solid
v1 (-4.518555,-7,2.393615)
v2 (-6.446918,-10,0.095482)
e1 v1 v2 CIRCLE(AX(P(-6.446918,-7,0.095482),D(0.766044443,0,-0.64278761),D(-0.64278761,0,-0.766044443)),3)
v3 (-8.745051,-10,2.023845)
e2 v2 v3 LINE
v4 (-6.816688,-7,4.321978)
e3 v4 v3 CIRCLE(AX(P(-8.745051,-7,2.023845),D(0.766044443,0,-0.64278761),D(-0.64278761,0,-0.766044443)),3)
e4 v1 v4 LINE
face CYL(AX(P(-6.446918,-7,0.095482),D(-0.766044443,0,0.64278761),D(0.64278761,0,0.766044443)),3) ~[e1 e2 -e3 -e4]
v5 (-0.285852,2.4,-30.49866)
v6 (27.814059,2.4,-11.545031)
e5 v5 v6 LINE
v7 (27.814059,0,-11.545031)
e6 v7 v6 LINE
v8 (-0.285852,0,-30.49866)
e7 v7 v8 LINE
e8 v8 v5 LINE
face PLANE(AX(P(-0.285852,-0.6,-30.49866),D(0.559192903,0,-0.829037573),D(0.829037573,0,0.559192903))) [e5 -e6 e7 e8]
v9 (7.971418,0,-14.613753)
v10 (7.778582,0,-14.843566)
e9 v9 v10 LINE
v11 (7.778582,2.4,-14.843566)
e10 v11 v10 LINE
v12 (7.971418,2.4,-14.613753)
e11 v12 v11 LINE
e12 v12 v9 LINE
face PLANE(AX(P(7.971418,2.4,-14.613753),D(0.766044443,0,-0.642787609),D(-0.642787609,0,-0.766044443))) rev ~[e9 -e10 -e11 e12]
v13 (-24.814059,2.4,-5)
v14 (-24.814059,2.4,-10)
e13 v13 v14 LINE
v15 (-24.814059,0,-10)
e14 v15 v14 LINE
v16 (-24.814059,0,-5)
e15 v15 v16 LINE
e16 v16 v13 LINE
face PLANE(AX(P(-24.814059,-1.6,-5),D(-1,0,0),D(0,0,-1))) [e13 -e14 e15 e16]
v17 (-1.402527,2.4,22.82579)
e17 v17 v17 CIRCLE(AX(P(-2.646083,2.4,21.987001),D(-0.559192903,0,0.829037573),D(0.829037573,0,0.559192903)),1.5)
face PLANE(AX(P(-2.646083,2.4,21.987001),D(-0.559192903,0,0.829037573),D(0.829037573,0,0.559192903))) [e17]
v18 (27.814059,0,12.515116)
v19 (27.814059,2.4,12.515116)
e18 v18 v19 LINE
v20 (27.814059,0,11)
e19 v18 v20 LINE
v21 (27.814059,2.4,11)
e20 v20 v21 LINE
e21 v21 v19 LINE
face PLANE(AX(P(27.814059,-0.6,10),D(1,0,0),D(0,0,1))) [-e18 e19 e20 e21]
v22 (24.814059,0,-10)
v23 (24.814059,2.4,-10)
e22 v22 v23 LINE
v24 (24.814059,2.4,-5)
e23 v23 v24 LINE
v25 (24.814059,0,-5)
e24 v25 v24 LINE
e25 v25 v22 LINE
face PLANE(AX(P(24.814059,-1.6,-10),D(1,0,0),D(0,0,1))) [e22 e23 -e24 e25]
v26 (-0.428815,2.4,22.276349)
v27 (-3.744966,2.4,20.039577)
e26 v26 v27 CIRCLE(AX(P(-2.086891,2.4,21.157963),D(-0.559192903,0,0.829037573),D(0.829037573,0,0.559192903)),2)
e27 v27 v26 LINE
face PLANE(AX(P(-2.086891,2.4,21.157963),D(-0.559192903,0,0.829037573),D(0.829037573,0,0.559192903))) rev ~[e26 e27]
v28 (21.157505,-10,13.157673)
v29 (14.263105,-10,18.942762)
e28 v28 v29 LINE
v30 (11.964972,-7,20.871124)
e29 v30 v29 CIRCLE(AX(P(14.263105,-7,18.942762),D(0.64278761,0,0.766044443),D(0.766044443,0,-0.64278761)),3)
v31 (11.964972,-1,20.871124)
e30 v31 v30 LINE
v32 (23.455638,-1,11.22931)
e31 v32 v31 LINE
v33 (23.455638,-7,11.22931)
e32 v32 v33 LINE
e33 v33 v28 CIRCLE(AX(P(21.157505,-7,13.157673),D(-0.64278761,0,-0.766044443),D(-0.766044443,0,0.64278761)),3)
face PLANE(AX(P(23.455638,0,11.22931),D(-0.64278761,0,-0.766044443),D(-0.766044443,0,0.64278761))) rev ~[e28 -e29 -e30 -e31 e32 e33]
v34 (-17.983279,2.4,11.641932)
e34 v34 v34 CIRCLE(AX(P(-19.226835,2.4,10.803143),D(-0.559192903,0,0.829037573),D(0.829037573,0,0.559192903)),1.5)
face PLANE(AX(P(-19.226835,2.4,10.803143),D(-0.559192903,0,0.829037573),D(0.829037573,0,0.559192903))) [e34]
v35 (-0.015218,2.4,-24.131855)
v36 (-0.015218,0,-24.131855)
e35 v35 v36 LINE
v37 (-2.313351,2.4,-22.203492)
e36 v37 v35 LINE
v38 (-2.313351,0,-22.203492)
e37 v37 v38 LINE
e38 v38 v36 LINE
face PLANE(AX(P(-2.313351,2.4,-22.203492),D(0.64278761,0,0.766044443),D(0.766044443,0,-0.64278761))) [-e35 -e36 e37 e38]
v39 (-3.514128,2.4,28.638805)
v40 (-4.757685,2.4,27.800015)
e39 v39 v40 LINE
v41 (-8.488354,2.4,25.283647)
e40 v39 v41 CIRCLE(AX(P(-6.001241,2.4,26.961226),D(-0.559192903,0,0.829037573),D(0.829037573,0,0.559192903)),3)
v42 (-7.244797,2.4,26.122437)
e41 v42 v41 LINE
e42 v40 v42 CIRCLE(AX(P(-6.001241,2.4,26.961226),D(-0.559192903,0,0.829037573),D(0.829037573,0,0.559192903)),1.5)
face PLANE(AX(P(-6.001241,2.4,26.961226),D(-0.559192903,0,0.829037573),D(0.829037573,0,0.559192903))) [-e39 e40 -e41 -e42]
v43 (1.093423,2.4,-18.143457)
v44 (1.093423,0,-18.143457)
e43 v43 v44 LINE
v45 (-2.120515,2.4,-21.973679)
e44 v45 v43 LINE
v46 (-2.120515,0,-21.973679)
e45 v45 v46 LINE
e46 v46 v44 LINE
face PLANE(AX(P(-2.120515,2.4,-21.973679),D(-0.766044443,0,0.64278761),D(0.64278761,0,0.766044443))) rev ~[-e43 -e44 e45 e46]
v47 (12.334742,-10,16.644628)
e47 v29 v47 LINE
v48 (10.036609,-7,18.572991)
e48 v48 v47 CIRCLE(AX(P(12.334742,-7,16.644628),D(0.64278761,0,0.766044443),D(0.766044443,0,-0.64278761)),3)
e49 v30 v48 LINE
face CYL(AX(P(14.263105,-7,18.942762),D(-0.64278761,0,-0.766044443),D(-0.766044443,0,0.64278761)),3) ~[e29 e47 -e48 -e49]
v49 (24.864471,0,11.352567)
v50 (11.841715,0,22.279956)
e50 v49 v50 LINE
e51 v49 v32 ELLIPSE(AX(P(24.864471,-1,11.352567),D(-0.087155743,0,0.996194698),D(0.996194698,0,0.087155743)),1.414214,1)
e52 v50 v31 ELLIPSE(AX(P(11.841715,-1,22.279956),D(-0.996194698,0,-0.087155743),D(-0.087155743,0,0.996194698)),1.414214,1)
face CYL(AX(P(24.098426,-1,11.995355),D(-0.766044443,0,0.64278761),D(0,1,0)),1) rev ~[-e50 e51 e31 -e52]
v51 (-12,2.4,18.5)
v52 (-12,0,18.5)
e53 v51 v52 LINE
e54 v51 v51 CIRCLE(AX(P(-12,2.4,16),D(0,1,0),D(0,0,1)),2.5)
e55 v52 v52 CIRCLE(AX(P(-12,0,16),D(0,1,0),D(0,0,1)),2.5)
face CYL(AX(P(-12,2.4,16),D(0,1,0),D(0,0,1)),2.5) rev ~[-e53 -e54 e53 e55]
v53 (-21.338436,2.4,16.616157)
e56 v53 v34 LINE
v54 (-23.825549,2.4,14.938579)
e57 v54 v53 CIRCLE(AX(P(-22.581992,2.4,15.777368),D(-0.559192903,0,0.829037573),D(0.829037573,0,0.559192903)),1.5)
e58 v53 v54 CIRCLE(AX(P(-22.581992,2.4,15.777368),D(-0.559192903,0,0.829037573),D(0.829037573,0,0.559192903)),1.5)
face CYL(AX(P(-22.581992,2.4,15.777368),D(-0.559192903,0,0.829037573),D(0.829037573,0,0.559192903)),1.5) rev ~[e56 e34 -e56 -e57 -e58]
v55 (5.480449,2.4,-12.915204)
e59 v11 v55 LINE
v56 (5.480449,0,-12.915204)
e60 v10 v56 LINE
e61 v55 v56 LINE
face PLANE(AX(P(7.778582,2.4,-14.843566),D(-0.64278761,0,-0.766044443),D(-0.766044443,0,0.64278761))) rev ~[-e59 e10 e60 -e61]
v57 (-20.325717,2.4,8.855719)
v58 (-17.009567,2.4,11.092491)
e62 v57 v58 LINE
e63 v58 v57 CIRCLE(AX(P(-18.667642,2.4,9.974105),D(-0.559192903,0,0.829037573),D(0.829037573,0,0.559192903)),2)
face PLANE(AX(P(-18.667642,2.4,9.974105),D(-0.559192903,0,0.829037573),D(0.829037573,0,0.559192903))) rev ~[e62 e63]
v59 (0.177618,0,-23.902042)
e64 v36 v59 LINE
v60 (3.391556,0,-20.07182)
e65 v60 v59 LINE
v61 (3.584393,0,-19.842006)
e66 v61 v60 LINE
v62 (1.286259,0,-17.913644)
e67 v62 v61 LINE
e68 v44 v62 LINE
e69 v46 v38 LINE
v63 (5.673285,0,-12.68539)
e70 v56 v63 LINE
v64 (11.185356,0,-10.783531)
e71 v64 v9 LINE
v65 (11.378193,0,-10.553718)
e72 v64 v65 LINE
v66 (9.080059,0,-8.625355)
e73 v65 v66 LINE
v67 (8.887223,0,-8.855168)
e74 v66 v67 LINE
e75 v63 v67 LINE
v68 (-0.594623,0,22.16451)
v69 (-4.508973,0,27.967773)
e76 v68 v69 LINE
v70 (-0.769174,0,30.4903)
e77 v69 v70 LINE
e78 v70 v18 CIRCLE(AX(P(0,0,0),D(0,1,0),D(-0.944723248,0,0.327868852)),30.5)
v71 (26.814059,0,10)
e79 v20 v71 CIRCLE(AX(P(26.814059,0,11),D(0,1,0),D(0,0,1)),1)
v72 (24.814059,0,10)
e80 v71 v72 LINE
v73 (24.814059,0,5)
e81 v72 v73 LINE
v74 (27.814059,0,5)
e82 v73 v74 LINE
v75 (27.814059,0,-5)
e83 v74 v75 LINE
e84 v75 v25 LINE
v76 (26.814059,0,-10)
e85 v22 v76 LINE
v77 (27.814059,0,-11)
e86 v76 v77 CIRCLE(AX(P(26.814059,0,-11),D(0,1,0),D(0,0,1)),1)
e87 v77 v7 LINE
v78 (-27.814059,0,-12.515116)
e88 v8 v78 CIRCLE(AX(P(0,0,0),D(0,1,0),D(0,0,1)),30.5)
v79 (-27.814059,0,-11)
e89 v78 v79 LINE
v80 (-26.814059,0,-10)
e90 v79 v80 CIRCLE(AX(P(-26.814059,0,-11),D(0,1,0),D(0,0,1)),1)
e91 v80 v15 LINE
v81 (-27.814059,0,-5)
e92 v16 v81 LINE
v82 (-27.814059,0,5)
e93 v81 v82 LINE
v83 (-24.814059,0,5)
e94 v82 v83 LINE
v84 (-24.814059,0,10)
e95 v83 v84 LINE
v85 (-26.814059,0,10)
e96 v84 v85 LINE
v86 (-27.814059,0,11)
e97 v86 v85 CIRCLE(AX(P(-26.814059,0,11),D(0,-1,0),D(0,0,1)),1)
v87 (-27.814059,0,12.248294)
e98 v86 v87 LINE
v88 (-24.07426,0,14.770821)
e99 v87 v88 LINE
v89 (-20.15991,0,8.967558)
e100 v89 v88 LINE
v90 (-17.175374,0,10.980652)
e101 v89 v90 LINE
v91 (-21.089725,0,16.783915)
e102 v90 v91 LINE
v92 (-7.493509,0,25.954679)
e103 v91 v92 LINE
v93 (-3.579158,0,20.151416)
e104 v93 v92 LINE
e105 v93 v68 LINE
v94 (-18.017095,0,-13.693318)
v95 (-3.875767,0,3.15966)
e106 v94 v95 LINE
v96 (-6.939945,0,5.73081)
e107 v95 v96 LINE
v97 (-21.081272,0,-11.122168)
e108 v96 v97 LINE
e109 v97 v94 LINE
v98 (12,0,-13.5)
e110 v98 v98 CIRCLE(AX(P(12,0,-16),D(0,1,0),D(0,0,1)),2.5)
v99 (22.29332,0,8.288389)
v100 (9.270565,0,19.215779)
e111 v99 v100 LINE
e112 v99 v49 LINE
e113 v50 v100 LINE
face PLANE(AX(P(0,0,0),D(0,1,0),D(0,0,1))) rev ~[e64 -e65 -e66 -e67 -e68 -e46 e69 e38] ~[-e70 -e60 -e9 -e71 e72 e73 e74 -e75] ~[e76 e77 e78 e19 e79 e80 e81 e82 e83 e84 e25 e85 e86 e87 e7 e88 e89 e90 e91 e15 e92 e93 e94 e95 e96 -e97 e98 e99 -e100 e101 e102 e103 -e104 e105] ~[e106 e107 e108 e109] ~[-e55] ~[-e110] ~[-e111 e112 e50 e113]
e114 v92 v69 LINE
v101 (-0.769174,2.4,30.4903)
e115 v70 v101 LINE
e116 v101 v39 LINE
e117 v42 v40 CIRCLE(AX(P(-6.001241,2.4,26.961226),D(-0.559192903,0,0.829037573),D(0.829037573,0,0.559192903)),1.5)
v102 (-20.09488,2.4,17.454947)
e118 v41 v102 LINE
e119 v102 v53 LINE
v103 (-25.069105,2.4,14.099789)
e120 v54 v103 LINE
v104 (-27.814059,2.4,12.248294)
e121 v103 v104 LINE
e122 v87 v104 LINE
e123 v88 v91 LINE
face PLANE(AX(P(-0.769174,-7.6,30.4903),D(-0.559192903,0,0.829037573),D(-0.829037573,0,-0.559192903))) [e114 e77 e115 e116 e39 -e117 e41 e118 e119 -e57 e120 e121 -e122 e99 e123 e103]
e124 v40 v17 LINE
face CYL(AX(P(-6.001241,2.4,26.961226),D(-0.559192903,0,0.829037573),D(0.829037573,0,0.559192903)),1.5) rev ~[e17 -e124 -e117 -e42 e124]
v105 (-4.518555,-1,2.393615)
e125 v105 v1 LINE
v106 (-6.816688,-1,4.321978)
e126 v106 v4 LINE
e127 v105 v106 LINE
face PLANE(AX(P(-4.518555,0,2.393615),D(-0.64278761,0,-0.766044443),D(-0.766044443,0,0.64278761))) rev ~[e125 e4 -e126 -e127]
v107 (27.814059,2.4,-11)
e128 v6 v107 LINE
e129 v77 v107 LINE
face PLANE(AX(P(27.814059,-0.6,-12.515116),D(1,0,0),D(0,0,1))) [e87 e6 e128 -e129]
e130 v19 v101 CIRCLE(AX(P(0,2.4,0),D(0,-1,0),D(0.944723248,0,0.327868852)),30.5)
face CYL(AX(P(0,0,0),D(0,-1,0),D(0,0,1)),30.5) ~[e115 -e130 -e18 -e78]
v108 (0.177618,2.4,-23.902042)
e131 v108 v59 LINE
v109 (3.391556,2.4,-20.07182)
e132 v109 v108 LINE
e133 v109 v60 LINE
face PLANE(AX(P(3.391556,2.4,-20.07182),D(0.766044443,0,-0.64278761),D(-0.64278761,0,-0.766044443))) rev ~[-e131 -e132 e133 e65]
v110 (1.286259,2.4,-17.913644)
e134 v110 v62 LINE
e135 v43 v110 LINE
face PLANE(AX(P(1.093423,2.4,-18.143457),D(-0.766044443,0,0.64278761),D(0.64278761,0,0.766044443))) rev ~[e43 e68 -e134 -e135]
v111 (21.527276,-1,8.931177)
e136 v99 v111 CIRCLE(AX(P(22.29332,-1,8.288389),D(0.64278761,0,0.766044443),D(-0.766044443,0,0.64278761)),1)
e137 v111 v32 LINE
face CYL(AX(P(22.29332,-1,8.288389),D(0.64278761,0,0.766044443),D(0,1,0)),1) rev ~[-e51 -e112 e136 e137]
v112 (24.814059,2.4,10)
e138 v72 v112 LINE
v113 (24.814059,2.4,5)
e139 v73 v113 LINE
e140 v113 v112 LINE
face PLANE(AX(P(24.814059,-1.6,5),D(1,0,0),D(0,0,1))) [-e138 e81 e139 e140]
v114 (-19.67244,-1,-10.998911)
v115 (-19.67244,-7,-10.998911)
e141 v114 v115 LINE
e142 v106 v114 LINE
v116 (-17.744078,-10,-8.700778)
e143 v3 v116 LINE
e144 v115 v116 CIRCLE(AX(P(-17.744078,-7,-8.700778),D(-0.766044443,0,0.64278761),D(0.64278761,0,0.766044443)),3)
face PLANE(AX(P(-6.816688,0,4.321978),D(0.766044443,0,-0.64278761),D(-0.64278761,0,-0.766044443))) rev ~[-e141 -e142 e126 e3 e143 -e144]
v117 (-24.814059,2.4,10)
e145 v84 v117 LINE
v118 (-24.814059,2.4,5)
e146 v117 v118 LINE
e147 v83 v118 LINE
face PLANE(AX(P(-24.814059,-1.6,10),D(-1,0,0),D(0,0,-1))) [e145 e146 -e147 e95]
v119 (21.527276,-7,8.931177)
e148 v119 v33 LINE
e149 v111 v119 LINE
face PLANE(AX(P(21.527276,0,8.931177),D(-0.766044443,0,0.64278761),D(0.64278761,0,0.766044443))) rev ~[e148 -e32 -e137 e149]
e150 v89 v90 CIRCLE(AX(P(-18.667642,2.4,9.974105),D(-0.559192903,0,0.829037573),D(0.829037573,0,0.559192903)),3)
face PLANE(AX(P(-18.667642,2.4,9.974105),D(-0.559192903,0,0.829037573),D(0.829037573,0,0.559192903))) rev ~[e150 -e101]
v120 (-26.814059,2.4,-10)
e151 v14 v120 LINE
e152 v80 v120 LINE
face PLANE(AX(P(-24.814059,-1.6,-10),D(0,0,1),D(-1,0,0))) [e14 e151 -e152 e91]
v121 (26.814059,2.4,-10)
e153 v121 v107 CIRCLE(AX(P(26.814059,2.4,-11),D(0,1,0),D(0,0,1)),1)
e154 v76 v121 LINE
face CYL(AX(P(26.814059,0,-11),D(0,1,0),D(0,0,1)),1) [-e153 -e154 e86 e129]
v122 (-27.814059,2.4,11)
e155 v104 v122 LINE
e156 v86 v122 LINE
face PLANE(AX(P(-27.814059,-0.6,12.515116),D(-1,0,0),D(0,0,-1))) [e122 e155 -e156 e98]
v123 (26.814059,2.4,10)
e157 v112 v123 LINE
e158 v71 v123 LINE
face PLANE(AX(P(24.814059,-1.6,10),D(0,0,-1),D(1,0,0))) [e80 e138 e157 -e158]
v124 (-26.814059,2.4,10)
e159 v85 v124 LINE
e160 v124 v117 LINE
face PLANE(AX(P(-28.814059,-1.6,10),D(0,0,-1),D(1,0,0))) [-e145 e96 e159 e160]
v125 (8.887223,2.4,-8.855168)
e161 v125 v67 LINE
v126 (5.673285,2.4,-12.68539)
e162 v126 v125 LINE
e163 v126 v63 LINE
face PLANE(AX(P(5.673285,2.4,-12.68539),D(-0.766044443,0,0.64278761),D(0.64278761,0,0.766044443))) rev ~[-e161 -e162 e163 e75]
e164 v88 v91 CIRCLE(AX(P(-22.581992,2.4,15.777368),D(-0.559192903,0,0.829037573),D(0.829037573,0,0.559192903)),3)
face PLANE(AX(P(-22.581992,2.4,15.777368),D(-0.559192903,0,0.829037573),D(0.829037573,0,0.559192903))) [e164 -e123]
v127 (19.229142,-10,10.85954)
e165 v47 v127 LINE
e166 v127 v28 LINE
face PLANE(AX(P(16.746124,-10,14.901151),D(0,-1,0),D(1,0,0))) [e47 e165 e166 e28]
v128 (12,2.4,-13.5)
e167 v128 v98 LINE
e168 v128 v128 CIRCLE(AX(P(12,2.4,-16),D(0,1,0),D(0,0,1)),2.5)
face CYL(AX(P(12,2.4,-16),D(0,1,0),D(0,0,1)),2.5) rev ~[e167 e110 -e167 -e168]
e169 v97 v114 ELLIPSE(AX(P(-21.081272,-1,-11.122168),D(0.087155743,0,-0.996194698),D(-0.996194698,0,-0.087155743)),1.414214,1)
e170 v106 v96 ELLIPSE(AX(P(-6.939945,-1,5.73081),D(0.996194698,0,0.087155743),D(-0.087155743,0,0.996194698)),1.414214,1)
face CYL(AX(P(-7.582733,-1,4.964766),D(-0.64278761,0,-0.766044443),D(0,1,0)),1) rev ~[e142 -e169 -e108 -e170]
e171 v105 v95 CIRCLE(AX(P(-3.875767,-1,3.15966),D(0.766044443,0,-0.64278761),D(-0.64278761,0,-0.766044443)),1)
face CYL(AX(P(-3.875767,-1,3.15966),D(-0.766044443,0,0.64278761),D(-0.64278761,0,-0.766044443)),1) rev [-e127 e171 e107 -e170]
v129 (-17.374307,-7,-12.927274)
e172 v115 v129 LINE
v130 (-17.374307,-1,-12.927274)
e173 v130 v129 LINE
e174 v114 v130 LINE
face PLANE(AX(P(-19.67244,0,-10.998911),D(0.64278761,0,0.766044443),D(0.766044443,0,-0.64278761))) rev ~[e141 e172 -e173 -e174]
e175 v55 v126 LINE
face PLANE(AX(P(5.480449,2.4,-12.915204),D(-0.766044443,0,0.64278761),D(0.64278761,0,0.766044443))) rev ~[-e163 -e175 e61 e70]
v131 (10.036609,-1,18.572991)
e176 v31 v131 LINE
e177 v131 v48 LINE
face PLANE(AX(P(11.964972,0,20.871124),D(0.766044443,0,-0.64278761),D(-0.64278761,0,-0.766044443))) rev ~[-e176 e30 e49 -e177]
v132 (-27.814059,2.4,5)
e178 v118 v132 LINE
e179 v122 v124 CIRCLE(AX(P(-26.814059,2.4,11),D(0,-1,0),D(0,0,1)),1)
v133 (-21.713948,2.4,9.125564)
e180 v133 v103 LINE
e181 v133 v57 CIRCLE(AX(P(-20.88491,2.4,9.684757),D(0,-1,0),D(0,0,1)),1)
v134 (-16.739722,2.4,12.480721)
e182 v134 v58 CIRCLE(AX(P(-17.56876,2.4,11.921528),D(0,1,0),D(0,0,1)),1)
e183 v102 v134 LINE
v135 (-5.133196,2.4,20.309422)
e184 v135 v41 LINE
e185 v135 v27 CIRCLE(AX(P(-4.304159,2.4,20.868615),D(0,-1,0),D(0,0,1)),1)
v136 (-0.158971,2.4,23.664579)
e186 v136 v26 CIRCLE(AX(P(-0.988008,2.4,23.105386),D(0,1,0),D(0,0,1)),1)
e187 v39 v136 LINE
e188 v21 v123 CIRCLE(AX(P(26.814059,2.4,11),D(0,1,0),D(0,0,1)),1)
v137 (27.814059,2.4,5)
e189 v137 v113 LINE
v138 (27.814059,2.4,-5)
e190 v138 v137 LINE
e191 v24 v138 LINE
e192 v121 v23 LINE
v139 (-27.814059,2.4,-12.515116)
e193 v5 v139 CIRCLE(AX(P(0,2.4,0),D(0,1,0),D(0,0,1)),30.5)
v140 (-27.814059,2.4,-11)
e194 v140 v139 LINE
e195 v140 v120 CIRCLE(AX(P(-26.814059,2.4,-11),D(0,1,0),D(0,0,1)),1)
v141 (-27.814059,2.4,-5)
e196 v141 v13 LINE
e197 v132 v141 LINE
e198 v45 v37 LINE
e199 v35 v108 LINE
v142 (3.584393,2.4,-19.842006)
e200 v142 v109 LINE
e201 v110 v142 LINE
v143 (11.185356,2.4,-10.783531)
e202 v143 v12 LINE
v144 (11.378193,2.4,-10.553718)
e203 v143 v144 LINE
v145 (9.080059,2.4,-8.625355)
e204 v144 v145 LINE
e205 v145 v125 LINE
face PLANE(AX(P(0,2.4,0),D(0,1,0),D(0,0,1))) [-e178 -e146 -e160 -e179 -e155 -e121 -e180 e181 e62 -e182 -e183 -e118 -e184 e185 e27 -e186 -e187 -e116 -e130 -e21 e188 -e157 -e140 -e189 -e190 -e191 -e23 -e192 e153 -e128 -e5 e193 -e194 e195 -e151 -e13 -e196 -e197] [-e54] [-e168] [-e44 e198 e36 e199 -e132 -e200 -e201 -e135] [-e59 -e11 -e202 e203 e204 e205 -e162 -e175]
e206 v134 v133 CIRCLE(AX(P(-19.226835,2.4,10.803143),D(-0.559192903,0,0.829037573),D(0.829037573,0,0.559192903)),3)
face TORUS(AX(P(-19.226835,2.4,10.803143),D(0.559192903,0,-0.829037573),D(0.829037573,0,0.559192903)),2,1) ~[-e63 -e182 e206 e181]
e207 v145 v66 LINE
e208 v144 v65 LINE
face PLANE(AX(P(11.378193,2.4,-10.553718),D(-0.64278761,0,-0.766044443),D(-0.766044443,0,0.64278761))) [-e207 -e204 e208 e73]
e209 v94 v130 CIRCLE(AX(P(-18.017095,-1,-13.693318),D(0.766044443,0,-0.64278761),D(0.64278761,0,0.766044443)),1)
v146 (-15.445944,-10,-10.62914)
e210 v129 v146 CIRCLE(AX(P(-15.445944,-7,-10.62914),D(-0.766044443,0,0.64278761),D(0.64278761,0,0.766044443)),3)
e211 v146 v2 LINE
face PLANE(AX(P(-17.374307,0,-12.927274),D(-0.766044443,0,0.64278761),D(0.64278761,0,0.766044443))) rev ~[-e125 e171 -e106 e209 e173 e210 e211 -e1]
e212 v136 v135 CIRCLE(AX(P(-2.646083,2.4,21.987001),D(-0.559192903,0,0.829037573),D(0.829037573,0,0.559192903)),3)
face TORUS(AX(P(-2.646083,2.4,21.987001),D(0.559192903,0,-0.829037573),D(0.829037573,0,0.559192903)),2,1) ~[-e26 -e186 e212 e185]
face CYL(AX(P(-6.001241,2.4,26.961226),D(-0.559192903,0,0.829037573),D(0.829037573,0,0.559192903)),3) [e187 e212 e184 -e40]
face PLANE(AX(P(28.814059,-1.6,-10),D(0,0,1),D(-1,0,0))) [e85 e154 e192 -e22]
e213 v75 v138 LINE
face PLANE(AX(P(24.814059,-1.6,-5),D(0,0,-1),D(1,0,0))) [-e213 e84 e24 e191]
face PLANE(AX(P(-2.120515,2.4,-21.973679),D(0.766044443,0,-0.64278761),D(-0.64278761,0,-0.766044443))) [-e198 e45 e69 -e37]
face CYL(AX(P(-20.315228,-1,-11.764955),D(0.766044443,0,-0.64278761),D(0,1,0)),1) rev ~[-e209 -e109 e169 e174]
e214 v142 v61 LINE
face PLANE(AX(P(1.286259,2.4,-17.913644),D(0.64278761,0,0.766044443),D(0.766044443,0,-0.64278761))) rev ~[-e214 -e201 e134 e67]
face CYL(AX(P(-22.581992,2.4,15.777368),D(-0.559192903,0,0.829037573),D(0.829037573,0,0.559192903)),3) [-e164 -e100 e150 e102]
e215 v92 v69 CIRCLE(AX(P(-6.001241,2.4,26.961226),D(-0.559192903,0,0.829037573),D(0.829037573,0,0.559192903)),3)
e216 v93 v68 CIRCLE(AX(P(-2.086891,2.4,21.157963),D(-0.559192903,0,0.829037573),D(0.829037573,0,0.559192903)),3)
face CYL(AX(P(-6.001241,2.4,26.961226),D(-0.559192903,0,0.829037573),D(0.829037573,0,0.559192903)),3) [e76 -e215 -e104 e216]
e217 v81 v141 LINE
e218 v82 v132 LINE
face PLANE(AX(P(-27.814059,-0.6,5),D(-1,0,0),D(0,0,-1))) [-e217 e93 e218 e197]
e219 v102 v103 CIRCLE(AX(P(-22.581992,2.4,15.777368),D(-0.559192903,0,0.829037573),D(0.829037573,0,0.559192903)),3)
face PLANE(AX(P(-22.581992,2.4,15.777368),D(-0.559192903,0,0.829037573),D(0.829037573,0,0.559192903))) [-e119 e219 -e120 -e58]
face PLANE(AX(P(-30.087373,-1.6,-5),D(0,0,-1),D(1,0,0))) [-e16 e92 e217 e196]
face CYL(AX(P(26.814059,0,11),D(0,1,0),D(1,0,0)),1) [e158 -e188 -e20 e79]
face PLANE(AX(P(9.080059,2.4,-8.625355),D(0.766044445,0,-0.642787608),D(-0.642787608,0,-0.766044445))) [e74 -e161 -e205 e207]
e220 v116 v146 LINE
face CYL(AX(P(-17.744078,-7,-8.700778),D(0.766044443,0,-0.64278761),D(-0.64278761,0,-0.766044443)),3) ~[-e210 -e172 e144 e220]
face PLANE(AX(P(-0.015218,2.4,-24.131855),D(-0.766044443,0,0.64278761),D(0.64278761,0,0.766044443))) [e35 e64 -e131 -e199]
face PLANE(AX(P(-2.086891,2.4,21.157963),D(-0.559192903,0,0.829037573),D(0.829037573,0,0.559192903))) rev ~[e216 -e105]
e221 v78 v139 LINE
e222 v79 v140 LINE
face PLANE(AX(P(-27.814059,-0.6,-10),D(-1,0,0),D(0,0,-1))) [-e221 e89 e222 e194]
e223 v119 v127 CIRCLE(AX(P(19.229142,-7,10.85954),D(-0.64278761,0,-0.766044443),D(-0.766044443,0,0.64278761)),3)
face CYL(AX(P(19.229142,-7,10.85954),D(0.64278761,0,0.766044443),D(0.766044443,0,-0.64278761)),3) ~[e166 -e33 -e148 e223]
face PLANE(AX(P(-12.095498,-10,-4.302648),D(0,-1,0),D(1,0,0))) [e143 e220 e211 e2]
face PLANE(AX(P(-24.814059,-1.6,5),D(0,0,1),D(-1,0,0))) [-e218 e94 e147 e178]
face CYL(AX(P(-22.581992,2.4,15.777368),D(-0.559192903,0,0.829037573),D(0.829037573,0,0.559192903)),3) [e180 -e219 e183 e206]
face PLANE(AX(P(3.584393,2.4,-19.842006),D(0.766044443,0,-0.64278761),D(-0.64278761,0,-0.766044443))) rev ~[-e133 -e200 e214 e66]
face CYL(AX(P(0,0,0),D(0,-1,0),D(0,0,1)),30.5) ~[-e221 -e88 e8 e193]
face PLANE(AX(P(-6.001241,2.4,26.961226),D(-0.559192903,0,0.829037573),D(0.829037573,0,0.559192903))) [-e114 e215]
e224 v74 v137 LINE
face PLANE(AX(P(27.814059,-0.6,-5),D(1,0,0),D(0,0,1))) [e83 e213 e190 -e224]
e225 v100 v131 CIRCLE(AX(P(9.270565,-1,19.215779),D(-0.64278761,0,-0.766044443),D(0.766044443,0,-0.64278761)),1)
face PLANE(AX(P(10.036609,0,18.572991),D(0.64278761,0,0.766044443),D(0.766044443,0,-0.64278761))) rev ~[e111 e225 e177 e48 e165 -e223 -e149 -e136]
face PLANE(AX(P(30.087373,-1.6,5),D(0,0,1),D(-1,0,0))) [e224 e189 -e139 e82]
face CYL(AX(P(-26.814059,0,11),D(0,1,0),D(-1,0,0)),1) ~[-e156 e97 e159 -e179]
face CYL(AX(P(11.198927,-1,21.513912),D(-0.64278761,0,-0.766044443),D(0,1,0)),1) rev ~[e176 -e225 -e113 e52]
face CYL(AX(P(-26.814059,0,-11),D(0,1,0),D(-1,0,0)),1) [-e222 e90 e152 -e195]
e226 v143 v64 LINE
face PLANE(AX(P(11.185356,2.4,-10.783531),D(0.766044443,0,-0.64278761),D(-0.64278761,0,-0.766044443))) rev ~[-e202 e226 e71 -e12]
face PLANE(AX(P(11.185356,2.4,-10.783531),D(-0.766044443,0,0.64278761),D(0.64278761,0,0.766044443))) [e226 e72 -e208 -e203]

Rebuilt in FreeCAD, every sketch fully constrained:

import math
import FreeCAD as App
import Part
import Sketcher
from FreeCAD import Vector
Q = App.Units.Quantity


def edges_at(feature, points):
    """Names of the edges that pass closest to the given points."""
    edges = feature.Shape.Edges
    near = lambda p: min(range(len(edges)), key=lambda i: edges[i].distToShape(Part.Vertex(*p))[0])
    return sorted({f"Edge{near(p) + 1}" for p in points})

doc = App.newDocument("Part")
body = doc.addObject("PartDesign::Body", "Body")

# Sketch on XZ plane
sketch1 = body.newObject("Sketcher::SketchObject", "Sketch")
sketch1.AttachmentSupport = (doc.getObject("XZ_Plane"), [""])
sketch1.MapMode = "FlatFace"
sketch1.addGeometry(Part.Circle(Vector(0, 0, 0), Vector(0, 0, 1), 30), False)
sketch1.addConstraint([
    Sketcher.Constraint("Coincident", 0, 3, -1, 1),
    Sketcher.Constraint("Diameter", 0, Q("61 mm")),
])
pad1 = body.newObject("PartDesign::Pad", "Pad")
pad1.Profile = sketch1
pad1.Length = 2.4
pad1.Reversed = True

# Sketch on XZ plane
sketch2 = body.newObject("Sketcher::SketchObject", "Sketch001")
sketch2.AttachmentSupport = (doc.getObject("XZ_Plane"), [""])
sketch2.MapMode = "FlatFace"
sketch2.AttachmentOffset = App.Placement(Vector(0, 0, 1.6), App.Rotation())
sketch2.addGeometry([
    Part.ArcOfCircle(Part.Circle(Vector(0, 0, 0), Vector(0, 0, 1), 30.5), math.radians(-19.14), math.radians(-9.44)),  # 0
    Part.LineSegment(Vector(28.8, -10, 0), Vector(24.8, -10, 0)),  # 1
    Part.LineSegment(Vector(24.8, -10, 0), Vector(24.8, -5, 0)),  # 2
    Part.LineSegment(Vector(24.8, -5, 0), Vector(30.1, -5, 0)),  # 3
    Part.LineSegment(Vector(30.1, 5, 0), Vector(24.8, 5, 0)),  # 4
    Part.LineSegment(Vector(24.8, 5, 0), Vector(24.8, 10, 0)),  # 5
    Part.LineSegment(Vector(24.8, 10, 0), Vector(28.8, 10, 0)),  # 6
    Part.ArcOfCircle(Part.Circle(Vector(0, 0, 0), Vector(0, 0, 1), 30.5), math.radians(9.44), math.radians(19.14)),  # 7
    Part.LineSegment(Vector(-24.8, -5, 0), Vector(-24.8, -10, 0)),  # 8
    Part.LineSegment(Vector(-24.8, -10, 0), Vector(-28.8, -10, 0)),  # 9
    Part.ArcOfCircle(Part.Circle(Vector(0, 0, 0), Vector(0, 0, 1), 30.5), math.radians(-170.56), math.radians(-160.86)),  # 10
    Part.LineSegment(Vector(-30.1, -5, 0), Vector(-24.8, -5, 0)),  # 11
    Part.LineSegment(Vector(-28.8, 10, 0), Vector(-24.8, 10, 0)),  # 12
    Part.LineSegment(Vector(-24.8, 10, 0), Vector(-24.8, 5, 0)),  # 13
    Part.LineSegment(Vector(-24.8, 5, 0), Vector(-30.1, 5, 0)),  # 14
    Part.ArcOfCircle(Part.Circle(Vector(0, 0, 0), Vector(0, 0, 1), 30.5), math.radians(160.86), math.radians(170.56)),  # 15
], False)
sketch2.addConstraint([
    Sketcher.Constraint("Coincident", 0, 1, 1, 1),
    Sketcher.Constraint("Coincident", 1, 2, 2, 1),
    Sketcher.Constraint("Coincident", 2, 2, 3, 1),
    Sketcher.Constraint("Coincident", 3, 2, 0, 2),
    Sketcher.Constraint("Coincident", 4, 2, 5, 1),
    Sketcher.Constraint("Coincident", 5, 2, 6, 1),
    Sketcher.Constraint("Coincident", 6, 2, 7, 2),
    Sketcher.Constraint("Coincident", 7, 1, 4, 1),
    Sketcher.Constraint("Coincident", 8, 2, 9, 1),
    Sketcher.Constraint("Coincident", 9, 2, 10, 2),
    Sketcher.Constraint("Coincident", 10, 1, 11, 1),
    Sketcher.Constraint("Coincident", 11, 2, 8, 1),
    Sketcher.Constraint("Coincident", 12, 2, 13, 1),
    Sketcher.Constraint("Coincident", 13, 2, 14, 1),
    Sketcher.Constraint("Coincident", 14, 2, 15, 2),
    Sketcher.Constraint("Coincident", 15, 1, 12, 1),
    Sketcher.Constraint("Horizontal", 1),
    Sketcher.Constraint("Vertical", 2),
    Sketcher.Constraint("Horizontal", 3),
    Sketcher.Constraint("Horizontal", 4),
    Sketcher.Constraint("Vertical", 5),
    Sketcher.Constraint("Horizontal", 6),
    Sketcher.Constraint("Vertical", 8),
    Sketcher.Constraint("Horizontal", 9),
    Sketcher.Constraint("Horizontal", 11),
    Sketcher.Constraint("Horizontal", 12),
    Sketcher.Constraint("Vertical", 13),
    Sketcher.Constraint("Horizontal", 14),
    Sketcher.Constraint("Coincident", 0, 3, -1, 1),
    Sketcher.Constraint("Coincident", 7, 3, -1, 1),
    Sketcher.Constraint("Coincident", 10, 3, -1, 1),
    Sketcher.Constraint("Coincident", 15, 3, -1, 1),
    Sketcher.Constraint("Equal", 0, 7),
    Sketcher.Constraint("Equal", 7, 10),
    Sketcher.Constraint("Equal", 10, 15),
    Sketcher.Constraint("Symmetric", 5, 2, 8, 2, -1, 1),
    Sketcher.Constraint("Symmetric", 1, 2, 12, 2, -1, 1),
    Sketcher.Constraint("Symmetric", 1, 2, 8, 2, -2),
    Sketcher.Constraint("Horizontal", 3, 2, 10, 1),
    Sketcher.Constraint("Horizontal", 7, 1, 13, 2),
    Sketcher.Constraint("Vertical", 3, 2, 7, 1),
    Sketcher.Constraint("Radius", 0, Q("30.5 mm")),
    Sketcher.Constraint("DistanceX", 1, 2, 1, 1, Q("4 mm")),
    Sketcher.Constraint("DistanceY", 2, 1, 2, 2, Q("5 mm")),
    Sketcher.Constraint("DistanceY", 0, 1, -1, 1, Q("10 mm")),
])
pocket1 = body.newObject("PartDesign::Pocket", "Pocket")
pocket1.Profile = sketch2
pocket1.Length = 4

# Sketch on XZ plane
sketch3 = body.newObject("Sketcher::SketchObject", "Sketch002")
sketch3.AttachmentSupport = (doc.getObject("XZ_Plane"), [""])
sketch3.MapMode = "FlatFace"
sketch3.AttachmentOffset = App.Placement(Vector(0, 0, -2.4), App.Rotation())
sketch3.addGeometry([
    Part.LineSegment(Vector(5.7, -12.7, 0), Vector(8.9, -8.9, 0)),  # 0
    Part.LineSegment(Vector(8.9, -8.9, 0), Vector(11.2, -10.8, 0)),  # 1
    Part.LineSegment(Vector(11.2, -10.8, 0), Vector(8, -14.6, 0)),  # 2
    Part.LineSegment(Vector(8, -14.6, 0), Vector(5.7, -12.7, 0)),  # 3
    Part.LineSegment(Vector(-2.1, -22, 0), Vector(1.1, -18.1, 0)),  # 4
    Part.LineSegment(Vector(1.1, -18.1, 0), Vector(3.4, -20.1, 0)),  # 5
    Part.LineSegment(Vector(3.4, -20.1, 0), Vector(0.2, -23.9, 0)),  # 6
    Part.LineSegment(Vector(0.2, -23.9, 0), Vector(-2.1, -22, 0)),  # 7
], False)
sketch3.addConstraint([
    Sketcher.Constraint("Coincident", 0, 2, 1, 1),
    Sketcher.Constraint("Coincident", 1, 2, 2, 1),
    Sketcher.Constraint("Coincident", 2, 2, 3, 1),
    Sketcher.Constraint("Coincident", 3, 2, 0, 1),
    Sketcher.Constraint("Coincident", 4, 2, 5, 1),
    Sketcher.Constraint("Coincident", 5, 2, 6, 1),
    Sketcher.Constraint("Coincident", 6, 2, 7, 1),
    Sketcher.Constraint("Coincident", 7, 2, 4, 1),
    Sketcher.Constraint("Perpendicular", 0, 1),
    Sketcher.Constraint("Perpendicular", 1, 2),
    Sketcher.Constraint("Perpendicular", 2, 3),
    Sketcher.Constraint("Perpendicular", 3, 4),
    Sketcher.Constraint("Perpendicular", 4, 5),
    Sketcher.Constraint("Perpendicular", 5, 6),
    Sketcher.Constraint("Perpendicular", 6, 7),
    Sketcher.Constraint("Equal", 2, 4),
    Sketcher.Constraint("Equal", 3, 5),
    Sketcher.Constraint("Angle", 0, Q("50 deg")),
    Sketcher.Constraint("Distance", 0, Q("5 mm")),
    Sketcher.Constraint("Distance", 1, Q("3 mm")),
    Sketcher.Constraint("DistanceX", 4, 2, 0, 2, Q("7.7938 mm")),
    Sketcher.Constraint("DistanceY", 0, 2, -1, 1, Q("8.855168 mm")),
    Sketcher.Constraint("DistanceX", -1, 1, 2, 2, Q("7.971418 mm")),
    Sketcher.Constraint("DistanceY", 5, 2, -1, 1, Q("20.07182 mm")),
])
pocket2 = body.newObject("PartDesign::Pocket", "Pocket001")
pocket2.Profile = sketch3
pocket2.Length = 10
pocket2.Reversed = True

# Sketch on XZ plane
sketch4 = body.newObject("Sketcher::SketchObject", "Sketch003")
sketch4.AttachmentSupport = (doc.getObject("XZ_Plane"), [""])
sketch4.MapMode = "FlatFace"
sketch4.AttachmentOffset = App.Placement(Vector(0, 0, -2.4), App.Rotation())
sketch4.addGeometry([
    Part.Circle(Vector(12, -16, 0), Vector(0, 0, 1), 2.5),
    Part.Circle(Vector(-12, 16, 0), Vector(0, 0, 1), 2.5),
], False)
sketch4.addConstraint([
    Sketcher.Constraint("Equal", 0, 1),
    Sketcher.Constraint("Symmetric", 0, 3, 1, 3, -1, 1),
    Sketcher.Constraint("Diameter", 0, Q("5 mm")),
    Sketcher.Constraint("DistanceX", -1, 1, 0, 3, Q("12 mm")),
    Sketcher.Constraint("DistanceY", 0, 3, -1, 1, Q("16 mm")),
])
pocket3 = body.newObject("PartDesign::Pocket", "Pocket002")
pocket3.Profile = sketch4
pocket3.Length = 10
pocket3.Reversed = True

# Sketch on XZ plane
sketch5 = body.newObject("Sketcher::SketchObject", "Sketch004")
sketch5.AttachmentSupport = (doc.getObject("XZ_Plane"), [""])
sketch5.MapMode = "FlatFace"
sketch5.AttachmentOffset = App.Placement(Vector(0, 0, 0.6), App.Rotation())
sketch5.addGeometry([
    Part.ArcOfCircle(Part.Circle(Vector(0, 0, 0), Vector(0, 0, 1), 30.5), math.radians(155.77), math.radians(160.86)),  # 0
    Part.LineSegment(Vector(-27.8, 12.5, 0), Vector(-27.8, 10, 0)),  # 1
    Part.LineSegment(Vector(-27.8, 10, 0), Vector(-28.8, 10, 0)),  # 2
    Part.LineSegment(Vector(-27.8, 5, 0), Vector(-27.8, -5, 0)),  # 3
    Part.LineSegment(Vector(-27.8, -5, 0), Vector(-30.1, -5, 0)),  # 4
    Part.ArcOfCircle(Part.Circle(Vector(0, 0, 0), Vector(0, 0, 1), 30.5), math.radians(170.56), math.radians(189.44)),  # 5
    Part.LineSegment(Vector(-30.1, 5, 0), Vector(-27.8, 5, 0)),  # 6
    Part.LineSegment(Vector(-27.8, -10, 0), Vector(-27.8, -12.5, 0)),  # 7
    Part.ArcOfCircle(Part.Circle(Vector(0, 0, 0), Vector(0, 0, 1), 30.5), math.radians(-160.86), math.radians(-155.77)),  # 8
    Part.LineSegment(Vector(-28.8, -10, 0), Vector(-27.8, -10, 0)),  # 9
    Part.LineSegment(Vector(28.8, 10, 0), Vector(27.8, 10, 0)),  # 10
    Part.LineSegment(Vector(27.8, 10, 0), Vector(27.8, 12.5, 0)),  # 11
    Part.ArcOfCircle(Part.Circle(Vector(0, 0, 0), Vector(0, 0, 1), 30.5), math.radians(19.14), math.radians(24.23)),  # 12
    Part.LineSegment(Vector(30.1, -5, 0), Vector(27.8, -5, 0)),  # 13
    Part.LineSegment(Vector(27.8, -5, 0), Vector(27.8, 5, 0)),  # 14
    Part.LineSegment(Vector(27.8, 5, 0), Vector(30.1, 5, 0)),  # 15
    Part.ArcOfCircle(Part.Circle(Vector(0, 0, 0), Vector(0, 0, 1), 30.5), math.radians(-9.44), math.radians(9.44)),  # 16
    Part.LineSegment(Vector(27.8, -12.5, 0), Vector(27.8, -10, 0)),  # 17
    Part.LineSegment(Vector(27.8, -10, 0), Vector(28.8, -10, 0)),  # 18
    Part.ArcOfCircle(Part.Circle(Vector(0, 0, 0), Vector(0, 0, 1), 30.5), math.radians(-24.23), math.radians(-19.14)),  # 19
], False)
sketch5.addConstraint([
    Sketcher.Constraint("Coincident", 0, 1, 1, 1),
    Sketcher.Constraint("Coincident", 1, 2, 2, 1),
    Sketcher.Constraint("Coincident", 2, 2, 0, 2),
    Sketcher.Constraint("Coincident", 3, 2, 4, 1),
    Sketcher.Constraint("Coincident", 4, 2, 5, 2),
    Sketcher.Constraint("Coincident", 5, 1, 6, 1),
    Sketcher.Constraint("Coincident", 6, 2, 3, 1),
    Sketcher.Constraint("Coincident", 7, 2, 8, 2),
    Sketcher.Constraint("Coincident", 8, 1, 9, 1),
    Sketcher.Constraint("Coincident", 9, 2, 7, 1),
    Sketcher.Constraint("Coincident", 10, 2, 11, 1),
    Sketcher.Constraint("Coincident", 11, 2, 12, 2),
    Sketcher.Constraint("Coincident", 12, 1, 10, 1),
    Sketcher.Constraint("Coincident", 13, 2, 14, 1),
    Sketcher.Constraint("Coincident", 14, 2, 15, 1),
    Sketcher.Constraint("Coincident", 15, 2, 16, 2),
    Sketcher.Constraint("Coincident", 16, 1, 13, 1),
    Sketcher.Constraint("Coincident", 17, 2, 18, 1),
    Sketcher.Constraint("Coincident", 18, 2, 19, 2),
    Sketcher.Constraint("Coincident", 19, 1, 17, 1),
    Sketcher.Constraint("Vertical", 1),
    Sketcher.Constraint("Horizontal", 2),
    Sketcher.Constraint("Vertical", 3),
    Sketcher.Constraint("Horizontal", 4),
    Sketcher.Constraint("Horizontal", 6),
    Sketcher.Constraint("Vertical", 7),
    Sketcher.Constraint("Horizontal", 9),
    Sketcher.Constraint("Horizontal", 10),
    Sketcher.Constraint("Vertical", 11),
    Sketcher.Constraint("Horizontal", 13),
    Sketcher.Constraint("Vertical", 14),
    Sketcher.Constraint("Horizontal", 15),
    Sketcher.Constraint("Vertical", 17),
    Sketcher.Constraint("Horizontal", 18),
    Sketcher.Constraint("Coincident", 0, 3, -1, 1),
    Sketcher.Constraint("Coincident", 5, 3, -1, 1),
    Sketcher.Constraint("Coincident", 8, 3, -1, 1),
    Sketcher.Constraint("Coincident", 12, 3, -1, 1),
    Sketcher.Constraint("Coincident", 16, 3, -1, 1),
    Sketcher.Constraint("Coincident", 19, 3, -1, 1),
    Sketcher.Constraint("Equal", 0, 5),
    Sketcher.Constraint("Equal", 5, 8),
    Sketcher.Constraint("Equal", 8, 12),
    Sketcher.Constraint("Equal", 12, 16),
    Sketcher.Constraint("Equal", 16, 19),
    Sketcher.Constraint("Symmetric", 9, 2, 10, 2, -1, 1),
    Sketcher.Constraint("Symmetric", 6, 2, 13, 2, -1, 1),
    Sketcher.Constraint("Symmetric", 1, 2, 17, 2, -1, 1),
    Sketcher.Constraint("Symmetric", 1, 2, 10, 2, -2),
    Sketcher.Constraint("Horizontal", 4, 2, 13, 2),
    Sketcher.Constraint("Horizontal", 6, 2, 14, 2),
    Sketcher.Constraint("Vertical", 1, 2, 3, 2),
    Sketcher.Constraint("Radius", 0, Q("30.499999 mm")),
    Sketcher.Constraint("DistanceX", 2, 2, 2, 1, Q("1 mm")),
    Sketcher.Constraint("DistanceY", 3, 2, 3, 1, Q("10 mm")),
    Sketcher.Constraint("DistanceY", -1, 1, 1, 2, Q("10 mm")),
])
pocket4 = body.newObject("PartDesign::Pocket", "Pocket003")
pocket4.Profile = sketch5
pocket4.Length = 3

# Sketch on XZ plane
sketch6 = body.newObject("Sketcher::SketchObject", "Sketch005")
sketch6.AttachmentSupport = (doc.getObject("XZ_Plane"), [""])
sketch6.MapMode = "FlatFace"
sketch6.addGeometry([
    Part.LineSegment(Vector(-6.8, 4.3, 0), Vector(-19.7, -11, 0)),  # 0
    Part.LineSegment(Vector(-19.7, -11, 0), Vector(-17.4, -12.9, 0)),  # 1
    Part.LineSegment(Vector(-17.4, -12.9, 0), Vector(-4.5, 2.4, 0)),  # 2
    Part.LineSegment(Vector(-4.5, 2.4, 0), Vector(-6.8, 4.3, 0)),  # 3
    Part.LineSegment(Vector(21.5, 8.9, 0), Vector(23.5, 11.2, 0)),  # 4
    Part.LineSegment(Vector(23.5, 11.2, 0), Vector(12, 20.9, 0)),  # 5
    Part.LineSegment(Vector(12, 20.9, 0), Vector(10, 18.6, 0)),  # 6
    Part.LineSegment(Vector(10, 18.6, 0), Vector(21.5, 8.9, 0)),  # 7
], False)
sketch6.addConstraint([
    Sketcher.Constraint("Coincident", 0, 2, 1, 1),
    Sketcher.Constraint("Coincident", 1, 2, 2, 1),
    Sketcher.Constraint("Coincident", 2, 2, 3, 1),
    Sketcher.Constraint("Coincident", 3, 2, 0, 1),
    Sketcher.Constraint("Coincident", 4, 2, 5, 1),
    Sketcher.Constraint("Coincident", 5, 2, 6, 1),
    Sketcher.Constraint("Coincident", 6, 2, 7, 1),
    Sketcher.Constraint("Coincident", 7, 2, 4, 1),
    Sketcher.Constraint("Perpendicular", 0, 1),
    Sketcher.Constraint("Perpendicular", 1, 2),
    Sketcher.Constraint("Perpendicular", 2, 3),
    Sketcher.Constraint("Perpendicular", 3, 4),
    Sketcher.Constraint("Perpendicular", 4, 5),
    Sketcher.Constraint("Perpendicular", 5, 6),
    Sketcher.Constraint("Perpendicular", 6, 7),
    Sketcher.Constraint("Equal", 3, 4),
    Sketcher.Constraint("Angle", 0, Q("-130 deg")),
    Sketcher.Constraint("Distance", 0, Q("20 mm")),
    Sketcher.Constraint("Distance", 1, Q("3 mm")),
    Sketcher.Constraint("Distance", 5, Q("15 mm")),
    Sketcher.Constraint("DistanceY", 1, 2, 5, 2, Q("33.798398 mm")),
    Sketcher.Constraint("DistanceX", 0, 2, -1, 1, Q("19.67244 mm")),
    Sketcher.Constraint("DistanceY", 0, 2, -1, 1, Q("10.998911 mm")),
    Sketcher.Constraint("DistanceX", -1, 1, 4, 2, Q("23.455638 mm")),
])
pad2 = body.newObject("PartDesign::Pad", "Pad001")
pad2.Profile = sketch6
pad2.Length = 10
doc.recompute()

fillet = body.newObject("PartDesign::Fillet", "Fillet")
fillet.Base = (pad2, edges_at(pad2, [
    (-5.668, -10, 3.358),
    (-18.523, -10, -11.963),
    (22.491, -10, 10.08),
    (11.001, -10, 19.722),
]))
fillet.Radius = 3
doc.recompute()

fillet2 = body.newObject("PartDesign::Fillet", "Fillet001")
fillet2.Base = (fillet, edges_at(fillet, [
    (-5.668, 0, 3.358),
    (-13.245, 0, -3.338),
    (-18.523, 0, -11.963),
    (22.491, 0, 10.08),
    (17.71, 0, 16.05),
    (11.001, 0, 19.722),
]))
fillet2.Radius = 1

# Sketch on XZ plane
sketch7 = body.newObject("Sketcher::SketchObject", "Sketch006")
sketch7.AttachmentSupport = (doc.getObject("XZ_Plane"), [""])
sketch7.MapMode = "FlatFace"
sketch7.AttachmentOffset = App.Placement(Vector(0, 0, 0.6), App.Rotation())
sketch7.addGeometry([
    Part.LineSegment(Vector(-0.3, -30.5, 0), Vector(27.8, -11.5, 0)),
    Part.LineSegment(Vector(27.8, -11.5, 0), Vector(27.8, -12.5, 0)),
    Part.ArcOfCircle(Part.Circle(Vector(0, 0, 0), Vector(0, 0, 1), 30.5), math.radians(-91), math.radians(-24)),
], False)
sketch7.addConstraint([
    Sketcher.Constraint("Coincident", 0, 2, 1, 1),
    Sketcher.Constraint("Coincident", 1, 2, 2, 2),
    Sketcher.Constraint("Coincident", 2, 1, 0, 1),
    Sketcher.Constraint("Vertical", 1),
    Sketcher.Constraint("Coincident", 2, 3, -1, 1),
    Sketcher.Constraint("Radius", 2, Q("30.5 mm")),
    Sketcher.Constraint("Angle", 0, Q("34 deg")),
    Sketcher.Constraint("DistanceY", 1, 2, 1, 1, Q("0.970084 mm")),
    Sketcher.Constraint("DistanceX", -1, 1, 0, 2, Q("27.814059 mm")),
])
pocket5 = body.newObject("PartDesign::Pocket", "Pocket004")
pocket5.Profile = sketch7
pocket5.Length = 3

# Sketch on XZ plane
sketch8 = body.newObject("Sketcher::SketchObject", "Sketch007")
sketch8.AttachmentSupport = (doc.getObject("XZ_Plane"), [""])
sketch8.MapMode = "FlatFace"
sketch8.AttachmentOffset = App.Placement(Vector(0, 0, 7.6), App.Rotation())
sketch8.addGeometry([
    Part.LineSegment(Vector(-27.81, 12.25, 0), Vector(-27.81, 12.52, 0)),
    Part.ArcOfCircle(Part.Circle(Vector(0, 0, 0), Vector(0, 0, 1), 30.5), math.radians(91), math.radians(156)),
    Part.LineSegment(Vector(-0.77, 30.49, 0), Vector(-27.81, 12.25, 0)),
], False)
sketch8.addConstraint([
    Sketcher.Constraint("Coincident", 0, 2, 1, 2),
    Sketcher.Constraint("Coincident", 1, 1, 2, 1),
    Sketcher.Constraint("Coincident", 2, 2, 0, 1),
    Sketcher.Constraint("Vertical", 0),
    Sketcher.Constraint("Coincident", 1, 3, -1, 1),
    Sketcher.Constraint("Radius", 1, Q("30.5 mm")),
    Sketcher.Constraint("Angle", 2, Q("-146 deg")),
    Sketcher.Constraint("DistanceY", 0, 1, 0, 2, Q("0.266821 mm")),
    Sketcher.Constraint("DistanceY", -1, 1, 1, 1, Q("30.4903 mm")),
])
pocket6 = body.newObject("PartDesign::Pocket", "Pocket005")
pocket6.Profile = sketch8
pocket6.Length = 10

# Sketch on an angled plane
sketch9 = body.newObject("Sketcher::SketchObject", "Sketch008")
sketch9.Placement = App.Placement(Vector(-14.375575, 0, 21.312666), App.Rotation(Vector(0.829037573, 0, 0.559192903), Vector(0, 1, 0), Vector(-0.559192903, 0, 0.829037573), "ZXY"))
sketch9.addGeometry([
    Part.Circle(Vector(10.1, 2.4, 0), Vector(0, 0, 1), 3),
    Part.Circle(Vector(-9.9, 2.4, 0), Vector(0, 0, 1), 3),
], False)
sketch9.addConstraint([
    Sketcher.Constraint("Equal", 0, 1),
    Sketcher.Constraint("Horizontal", 0, 3, 1, 3),
    Sketcher.Constraint("Diameter", 0, Q("6 mm")),
    Sketcher.Constraint("DistanceX", 1, 3, 0, 3, Q("20 mm")),
    Sketcher.Constraint("DistanceY", -1, 1, 0, 3, Q("2.4 mm")),
    Sketcher.Constraint("DistanceX", -1, 1, 0, 3, Q("10.101272 mm")),
])
pad3 = body.newObject("PartDesign::Pad", "Pad002")
pad3.Profile = sketch9
pad3.Length = 7
pad3.Reversed = True

# Sketch on an angled plane
sketch10 = body.newObject("Sketcher::SketchObject", "Sketch009")
sketch10.Placement = App.Placement(Vector(-14.375575, 0, 21.312666), App.Rotation(Vector(0.829037573, 0, 0.559192903), Vector(0, 1, 0), Vector(-0.559192903, 0, 0.829037573), "ZXY"))
sketch10.addGeometry([
    Part.Circle(Vector(10.1, 2.4, 0), Vector(0, 0, 1), 1.5),
    Part.Circle(Vector(-9.9, 2.4, 0), Vector(0, 0, 1), 1.5),
], False)
sketch10.addConstraint([
    Sketcher.Constraint("Equal", 0, 1),
    Sketcher.Constraint("Horizontal", 0, 3, 1, 3),
    Sketcher.Constraint("Diameter", 0, Q("3 mm")),
    Sketcher.Constraint("DistanceX", 1, 3, 0, 3, Q("20 mm")),
    Sketcher.Constraint("DistanceY", -1, 1, 0, 3, Q("2.4 mm")),
    Sketcher.Constraint("DistanceX", -1, 1, 0, 3, Q("10.101272 mm")),
])
pocket7 = body.newObject("PartDesign::Pocket", "Pocket006")
pocket7.Profile = sketch10
pocket7.Length = 6
doc.recompute()

fillet3 = body.newObject("PartDesign::Fillet", "Fillet002")
fillet3.Base = (pocket7, edges_at(pocket7, [(-2.087, 5.4, 21.158), (-18.668, 5.4, 9.974)]))
fillet3.Radius = 1
doc.recompute()

fillet4 = body.newObject("PartDesign::Fillet", "Fillet003")
fillet4.Base = (fillet3, edges_at(fillet3, [
    (-27.814, 1.2, 10),
    (-27.814, 1.2, -10),
    (27.814, 1.2, 10),
    (27.814, 1.2, -10),
]))
fillet4.Radius = 1

# Sketch on XZ plane
sketch11 = body.newObject("Sketcher::SketchObject", "Sketch010")
sketch11.AttachmentSupport = (doc.getObject("XZ_Plane"), [""])
sketch11.MapMode = "FlatFace"
sketch11.AttachmentOffset = App.Placement(Vector(0, 0, -2.4), App.Rotation())
sketch11.addGeometry([
    Part.LineSegment(Vector(5.67, -12.69, 0), Vector(7.97, -14.61, 0)),  # 0
    Part.LineSegment(Vector(7.97, -14.61, 0), Vector(7.78, -14.84, 0)),  # 1
    Part.LineSegment(Vector(7.78, -14.84, 0), Vector(5.48, -12.92, 0)),  # 2
    Part.LineSegment(Vector(5.48, -12.92, 0), Vector(5.67, -12.69, 0)),  # 3
    Part.LineSegment(Vector(3.39, -20.07, 0), Vector(1.09, -18.14, 0)),  # 4
    Part.LineSegment(Vector(1.09, -18.14, 0), Vector(1.29, -17.91, 0)),  # 5
    Part.LineSegment(Vector(1.29, -17.91, 0), Vector(3.58, -19.84, 0)),  # 6
    Part.LineSegment(Vector(3.58, -19.84, 0), Vector(3.39, -20.07, 0)),  # 7
    Part.LineSegment(Vector(-2.12, -21.97, 0), Vector(0.18, -23.9, 0)),  # 8
    Part.LineSegment(Vector(0.18, -23.9, 0), Vector(-0.02, -24.13, 0)),  # 9
    Part.LineSegment(Vector(-0.02, -24.13, 0), Vector(-2.31, -22.2, 0)),  # 10
    Part.LineSegment(Vector(-2.31, -22.2, 0), Vector(-2.12, -21.97, 0)),  # 11
    Part.LineSegment(Vector(11.19, -10.78, 0), Vector(8.89, -8.86, 0)),  # 12
    Part.LineSegment(Vector(8.89, -8.86, 0), Vector(9.08, -8.63, 0)),  # 13
    Part.LineSegment(Vector(9.08, -8.63, 0), Vector(11.38, -10.55, 0)),  # 14
    Part.LineSegment(Vector(11.38, -10.55, 0), Vector(11.19, -10.78, 0)),  # 15
], False)
sketch11.addConstraint([
    Sketcher.Constraint("Coincident", 0, 2, 1, 1),
    Sketcher.Constraint("Coincident", 1, 2, 2, 1),
    Sketcher.Constraint("Coincident", 2, 2, 3, 1),
    Sketcher.Constraint("Coincident", 3, 2, 0, 1),
    Sketcher.Constraint("Coincident", 4, 2, 5, 1),
    Sketcher.Constraint("Coincident", 5, 2, 6, 1),
    Sketcher.Constraint("Coincident", 6, 2, 7, 1),
    Sketcher.Constraint("Coincident", 7, 2, 4, 1),
    Sketcher.Constraint("Coincident", 8, 2, 9, 1),
    Sketcher.Constraint("Coincident", 9, 2, 10, 1),
    Sketcher.Constraint("Coincident", 10, 2, 11, 1),
    Sketcher.Constraint("Coincident", 11, 2, 8, 1),
    Sketcher.Constraint("Coincident", 12, 2, 13, 1),
    Sketcher.Constraint("Coincident", 13, 2, 14, 1),
    Sketcher.Constraint("Coincident", 14, 2, 15, 1),
    Sketcher.Constraint("Coincident", 15, 2, 12, 1),
    Sketcher.Constraint("Perpendicular", 0, 1),
    Sketcher.Constraint("Perpendicular", 1, 2),
    Sketcher.Constraint("Perpendicular", 2, 3),
    Sketcher.Constraint("Perpendicular", 3, 4),
    Sketcher.Constraint("Perpendicular", 4, 5),
    Sketcher.Constraint("Perpendicular", 5, 6),
    Sketcher.Constraint("Perpendicular", 6, 7),
    Sketcher.Constraint("Perpendicular", 7, 8),
    Sketcher.Constraint("Perpendicular", 8, 9),
    Sketcher.Constraint("Perpendicular", 9, 10),
    Sketcher.Constraint("Perpendicular", 10, 11),
    Sketcher.Constraint("Perpendicular", 11, 12),
    Sketcher.Constraint("Perpendicular", 12, 13),
    Sketcher.Constraint("Perpendicular", 13, 14),
    Sketcher.Constraint("Perpendicular", 14, 15),
    Sketcher.Constraint("Equal", 2, 4),
    Sketcher.Constraint("Equal", 3, 5),
    Sketcher.Constraint("Equal", 6, 8),
    Sketcher.Constraint("Equal", 7, 9),
    Sketcher.Constraint("Equal", 10, 12),
    Sketcher.Constraint("Equal", 11, 13),
    Sketcher.Constraint("Angle", 0, Q("-40 deg")),
    Sketcher.Constraint("Distance", 0, Q("3 mm")),
    Sketcher.Constraint("Distance", 1, Q("0.3 mm")),
    Sketcher.Constraint("DistanceY", 8, 2, 5, 2, Q("5.988398 mm")),
    Sketcher.Constraint("DistanceY", 1, 2, 12, 2, Q("5.988398 mm")),
    Sketcher.Constraint("DistanceX", -1, 1, 0, 2, Q("7.971418 mm")),
    Sketcher.Constraint("DistanceY", 3, 2, -1, 1, Q("12.68539 mm")),
    Sketcher.Constraint("DistanceX", -1, 1, 5, 2, Q("1.286259 mm")),
    Sketcher.Constraint("DistanceY", 7, 2, -1, 1, Q("20.07182 mm")),
    Sketcher.Constraint("DistanceX", -1, 1, 8, 2, Q("0.177618 mm")),
    Sketcher.Constraint("DistanceX", -1, 1, 13, 2, Q("9.080059 mm")),
])
pocket8 = body.newObject("PartDesign::Pocket", "Pocket007")
pocket8.Profile = sketch11
pocket8.Length = 3
pocket8.Reversed = True

doc.recompute()
